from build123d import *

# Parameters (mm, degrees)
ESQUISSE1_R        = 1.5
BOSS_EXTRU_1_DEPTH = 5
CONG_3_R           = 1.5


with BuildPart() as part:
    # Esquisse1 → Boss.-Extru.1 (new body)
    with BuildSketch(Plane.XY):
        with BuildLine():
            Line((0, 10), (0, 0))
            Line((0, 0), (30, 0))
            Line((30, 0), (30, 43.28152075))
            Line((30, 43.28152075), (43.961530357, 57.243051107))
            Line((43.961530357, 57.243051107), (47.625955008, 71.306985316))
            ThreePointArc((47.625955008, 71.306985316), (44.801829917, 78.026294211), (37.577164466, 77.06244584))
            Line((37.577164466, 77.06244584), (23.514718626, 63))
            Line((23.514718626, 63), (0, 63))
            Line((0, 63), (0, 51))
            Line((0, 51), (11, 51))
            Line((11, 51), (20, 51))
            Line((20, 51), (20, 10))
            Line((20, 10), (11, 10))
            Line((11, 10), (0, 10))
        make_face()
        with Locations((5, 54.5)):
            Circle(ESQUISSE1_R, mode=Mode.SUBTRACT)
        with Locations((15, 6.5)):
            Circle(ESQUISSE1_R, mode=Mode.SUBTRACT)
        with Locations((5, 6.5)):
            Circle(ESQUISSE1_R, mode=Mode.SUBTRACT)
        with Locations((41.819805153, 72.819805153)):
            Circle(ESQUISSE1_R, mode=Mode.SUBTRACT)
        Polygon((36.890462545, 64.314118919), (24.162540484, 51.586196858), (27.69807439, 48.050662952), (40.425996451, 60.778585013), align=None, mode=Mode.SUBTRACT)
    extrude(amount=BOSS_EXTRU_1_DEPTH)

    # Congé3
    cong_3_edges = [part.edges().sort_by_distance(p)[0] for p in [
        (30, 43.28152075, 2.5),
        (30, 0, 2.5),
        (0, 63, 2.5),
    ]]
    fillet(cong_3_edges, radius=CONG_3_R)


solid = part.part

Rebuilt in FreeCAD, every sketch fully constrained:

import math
import FreeCAD as App
import Part
import Sketcher
from FreeCAD import Vector
Q = App.Units.Quantity


def edges_at(feature, points):
    """Names of the edges that pass closest to the given points."""
    edges = feature.Shape.Edges
    near = lambda p: min(range(len(edges)), key=lambda i: edges[i].distToShape(Part.Vertex(*p))[0])
    return sorted({f"Edge{near(p) + 1}" for p in points})

doc = App.newDocument("Part")
params = doc.addObject("Spreadsheet::Sheet", "Params")
for row, (alias, value) in enumerate([
    ("sketch1_diameter", "3 mm"),
    ("sketch1_radius", "6 mm"),
    ("sketch1_width", "30 mm"),
    ("sketch1_width2", "20 mm"),
    ("sketch1_height", "10 mm"),
    ("pad1_length", "5 mm"),
    ("fillet_radius", "1.5 mm"),
], start=1):
    params.set(f"A{row}", alias)
    params.set(f"B{row}", "=" + value)
    params.setAlias(f"B{row}", alias)

body = doc.addObject("PartDesign::Body", "Body")

sketch1 = body.newObject("Sketcher::SketchObject", "Sketch")
sketch1.AttachmentSupport = (doc.getObject("XY_Plane"), [""])
sketch1.MapMode = "FlatFace"
sketch1.addGeometry(Part.LineSegment(Vector(0, 10, 0), Vector(0, 0, 0)), False)
sketch1.addGeometry(Part.LineSegment(Vector(0, 0, 0), Vector(30, 0, 0)), False)
sketch1.addGeometry(Part.LineSegment(Vector(30, 0, 0), Vector(30, 43.3, 0)), False)
sketch1.addGeometry(Part.LineSegment(Vector(30, 43.3, 0), Vector(44, 57.2, 0)), False)
sketch1.addGeometry(Part.LineSegment(Vector(44, 57.2, 0), Vector(47.6, 71.3, 0)), False)
sketch1.addGeometry(Part.ArcOfCircle(Part.Circle(Vector(41.8, 72.8, 0), Vector(0, 0, 1), 6), math.radians(-15), math.radians(135)), False)
sketch1.addGeometry(Part.LineSegment(Vector(37.6, 77.1, 0), Vector(23.5, 63, 0)), False)
sketch1.addGeometry(Part.LineSegment(Vector(23.5, 63, 0), Vector(0, 63, 0)), False)
sketch1.addGeometry(Part.LineSegment(Vector(0, 63, 0), Vector(0, 51, 0)), False)
sketch1.addGeometry(Part.LineSegment(Vector(0, 51, 0), Vector(20, 51, 0)), False)
sketch1.addGeometry(Part.LineSegment(Vector(20, 51, 0), Vector(20, 10, 0)), False)
sketch1.addGeometry(Part.LineSegment(Vector(20, 10, 0), Vector(0, 10, 0)), False)
sketch1.addGeometry(Part.Circle(Vector(5, 6.5, 0), Vector(0, 0, 1), 1.5), False)
sketch1.addGeometry(Part.Circle(Vector(15, 6.5, 0), Vector(0, 0, 1), 1.5), False)
sketch1.addGeometry(Part.Circle(Vector(5, 54.5, 0), Vector(0, 0, 1), 1.5), False)
sketch1.addGeometry(Part.LineSegment(Vector(24.2, 51.6, 0), Vector(36.9, 64.3, 0)), False)
sketch1.addGeometry(Part.LineSegment(Vector(36.9, 64.3, 0), Vector(40.4, 60.8, 0)), False)
sketch1.addGeometry(Part.LineSegment(Vector(40.4, 60.8, 0), Vector(27.7, 48.1, 0)), False)
sketch1.addGeometry(Part.LineSegment(Vector(27.7, 48.1, 0), Vector(24.2, 51.6, 0)), False)
sketch1.addGeometry(Part.Circle(Vector(41.8, 72.8, 0), Vector(0, 0, 1), 1.5), False)
sketch1.addConstraint(Sketcher.Constraint("Coincident", 0, 2, 1, 1))
sketch1.addConstraint(Sketcher.Constraint("Coincident", 1, 2, 2, 1))
sketch1.addConstraint(Sketcher.Constraint("Coincident", 2, 2, 3, 1))
sketch1.addConstraint(Sketcher.Constraint("Coincident", 3, 2, 4, 1))
sketch1.addConstraint(Sketcher.Constraint("Tangent", 4, 2, 5, 1))
sketch1.addConstraint(Sketcher.Constraint("Tangent", 5, 2, 6, 1))
sketch1.addConstraint(Sketcher.Constraint("Coincident", 6, 2, 7, 1))
sketch1.addConstraint(Sketcher.Constraint("Coincident", 7, 2, 8, 1))
sketch1.addConstraint(Sketcher.Constraint("Coincident", 8, 2, 9, 1))
sketch1.addConstraint(Sketcher.Constraint("Coincident", 9, 2, 10, 1))
sketch1.addConstraint(Sketcher.Constraint("Coincident", 10, 2, 11, 1))
sketch1.addConstraint(Sketcher.Constraint("Coincident", 11, 2, 0, 1))
sketch1.addConstraint(Sketcher.Constraint("Coincident", 15, 2, 16, 1))
sketch1.addConstraint(Sketcher.Constraint("Coincident", 16, 2, 17, 1))
sketch1.addConstraint(Sketcher.Constraint("Coincident", 17, 2, 18, 1))
sketch1.addConstraint(Sketcher.Constraint("Coincident", 18, 2, 15, 1))
sketch1.addConstraint(Sketcher.Constraint("Vertical", 0))
sketch1.addConstraint(Sketcher.Constraint("Horizontal", 1))
sketch1.addConstraint(Sketcher.Constraint("Vertical", 2))
sketch1.addConstraint(Sketcher.Constraint("Horizontal", 7))
sketch1.addConstraint(Sketcher.Constraint("Vertical", 8))
sketch1.addConstraint(Sketcher.Constraint("Horizontal", 9))
sketch1.addConstraint(Sketcher.Constraint("Vertical", 10))
sketch1.addConstraint(Sketcher.Constraint("Horizontal", 11))
sketch1.addConstraint(Sketcher.Constraint("Coincident", 0, 2, -1, 1))
sketch1.addConstraint(Sketcher.Constraint("Coincident", 19, 3, 5, 3))
sketch1.addConstraint(Sketcher.Constraint("Equal", 12, 13))
sketch1.addConstraint(Sketcher.Constraint("Equal", 13, 14))
sketch1.addConstraint(Sketcher.Constraint("Equal", 14, 19))
sketch1.addConstraint(Sketcher.Constraint("PointOnObject", 7, 2, -2))
sketch1.addConstraint(Sketcher.Constraint("Parallel", 3, 6))
sketch1.addConstraint(Sketcher.Constraint("Parallel", 6, 15))
sketch1.addConstraint(Sketcher.Constraint("Perpendicular", 15, 16))
sketch1.addConstraint(Sketcher.Constraint("Perpendicular", 16, 17))
sketch1.addConstraint(Sketcher.Constraint("Perpendicular", 17, 18))
sketch1.addConstraint(Sketcher.Constraint("Horizontal", 12, 3, 13, 3))
sketch1.addConstraint(Sketcher.Constraint("Vertical", 12, 3, 14, 3))
sketch1.addConstraint(Sketcher.Constraint("Diameter", 12, 3.0))
sketch1.addConstraint(Sketcher.Constraint("Radius", 5, 6.0))
sketch1.addConstraint(Sketcher.Constraint("DistanceX", 1, 1, 1, 2, 30.0))
sketch1.addConstraint(Sketcher.Constraint("DistanceX", 9, 1, 9, 2, 20.0))
sketch1.addConstraint(Sketcher.Constraint("DistanceY", 0, 2, 0, 1, 10.0))
sketch1.addConstraint(Sketcher.Constraint("DistanceY", 8, 2, 8, 1, 12.0))
sketch1.addConstraint(Sketcher.Constraint("DistanceY", 10, 2, 10, 1, 41.0))
sketch1.addConstraint(Sketcher.Constraint("Angle", 3, Q("45 deg")))
sketch1.addConstraint(Sketcher.Constraint("Distance", 15, 18.0))
sketch1.addConstraint(Sketcher.Constraint("Distance", 16, 5.0))
sketch1.addConstraint(Sketcher.Constraint("DistanceX", -1, 1, 12, 3, 5.0))
sketch1.addConstraint(Sketcher.Constraint("DistanceX", -1, 1, 13, 3, 15.0))
sketch1.addConstraint(Sketcher.Constraint("DistanceY", 12, 3, 14, 3, 48.0))
sketch1.addConstraint(Sketcher.Constraint("DistanceY", -1, 1, 12, 3, 6.5))
sketch1.addConstraint(Sketcher.Constraint("Distance", 6, 19.887302))
sketch1.addConstraint(Sketcher.Constraint("DistanceX", 7, 2, 7, 1, 23.514719))
sketch1.addConstraint(Sketcher.Constraint("DistanceY", 2, 1, 2, 2, 43.281521))
sketch1.addConstraint(Sketcher.Constraint("DistanceX", 15, 2, 5, 2, 0.686702))
sketch1.addConstraint(Sketcher.Constraint("DistanceY", 16, 2, 4, 2, 10.5284))
sketch1.addConstraint(Sketcher.Constraint("DistanceX", -1, 1, 3, 2, 43.96153))
sketch1.setExpression("Constraints[37]", "Params.sketch1_diameter")
sketch1.setExpression("Constraints[38]", "Params.sketch1_radius")
sketch1.setExpression("Constraints[39]", "Params.sketch1_width")
sketch1.setExpression("Constraints[40]", "Params.sketch1_width2")
sketch1.setExpression("Constraints[41]", "Params.sketch1_height")
pad1 = body.newObject("PartDesign::Pad", "Pad")
pad1.Profile = sketch1
pad1.setExpression("Length", "Params.pad1_length")
doc.recompute()

fillet = body.newObject("PartDesign::Fillet", "Fillet")
fillet.Base = (pad1, edges_at(pad1, [(30, 43.282, 2.5), (30, 0, 2.5), (0, 63, 2.5)]))
fillet.setExpression("Radius", "Params.fillet_radius")

doc.recompute()
